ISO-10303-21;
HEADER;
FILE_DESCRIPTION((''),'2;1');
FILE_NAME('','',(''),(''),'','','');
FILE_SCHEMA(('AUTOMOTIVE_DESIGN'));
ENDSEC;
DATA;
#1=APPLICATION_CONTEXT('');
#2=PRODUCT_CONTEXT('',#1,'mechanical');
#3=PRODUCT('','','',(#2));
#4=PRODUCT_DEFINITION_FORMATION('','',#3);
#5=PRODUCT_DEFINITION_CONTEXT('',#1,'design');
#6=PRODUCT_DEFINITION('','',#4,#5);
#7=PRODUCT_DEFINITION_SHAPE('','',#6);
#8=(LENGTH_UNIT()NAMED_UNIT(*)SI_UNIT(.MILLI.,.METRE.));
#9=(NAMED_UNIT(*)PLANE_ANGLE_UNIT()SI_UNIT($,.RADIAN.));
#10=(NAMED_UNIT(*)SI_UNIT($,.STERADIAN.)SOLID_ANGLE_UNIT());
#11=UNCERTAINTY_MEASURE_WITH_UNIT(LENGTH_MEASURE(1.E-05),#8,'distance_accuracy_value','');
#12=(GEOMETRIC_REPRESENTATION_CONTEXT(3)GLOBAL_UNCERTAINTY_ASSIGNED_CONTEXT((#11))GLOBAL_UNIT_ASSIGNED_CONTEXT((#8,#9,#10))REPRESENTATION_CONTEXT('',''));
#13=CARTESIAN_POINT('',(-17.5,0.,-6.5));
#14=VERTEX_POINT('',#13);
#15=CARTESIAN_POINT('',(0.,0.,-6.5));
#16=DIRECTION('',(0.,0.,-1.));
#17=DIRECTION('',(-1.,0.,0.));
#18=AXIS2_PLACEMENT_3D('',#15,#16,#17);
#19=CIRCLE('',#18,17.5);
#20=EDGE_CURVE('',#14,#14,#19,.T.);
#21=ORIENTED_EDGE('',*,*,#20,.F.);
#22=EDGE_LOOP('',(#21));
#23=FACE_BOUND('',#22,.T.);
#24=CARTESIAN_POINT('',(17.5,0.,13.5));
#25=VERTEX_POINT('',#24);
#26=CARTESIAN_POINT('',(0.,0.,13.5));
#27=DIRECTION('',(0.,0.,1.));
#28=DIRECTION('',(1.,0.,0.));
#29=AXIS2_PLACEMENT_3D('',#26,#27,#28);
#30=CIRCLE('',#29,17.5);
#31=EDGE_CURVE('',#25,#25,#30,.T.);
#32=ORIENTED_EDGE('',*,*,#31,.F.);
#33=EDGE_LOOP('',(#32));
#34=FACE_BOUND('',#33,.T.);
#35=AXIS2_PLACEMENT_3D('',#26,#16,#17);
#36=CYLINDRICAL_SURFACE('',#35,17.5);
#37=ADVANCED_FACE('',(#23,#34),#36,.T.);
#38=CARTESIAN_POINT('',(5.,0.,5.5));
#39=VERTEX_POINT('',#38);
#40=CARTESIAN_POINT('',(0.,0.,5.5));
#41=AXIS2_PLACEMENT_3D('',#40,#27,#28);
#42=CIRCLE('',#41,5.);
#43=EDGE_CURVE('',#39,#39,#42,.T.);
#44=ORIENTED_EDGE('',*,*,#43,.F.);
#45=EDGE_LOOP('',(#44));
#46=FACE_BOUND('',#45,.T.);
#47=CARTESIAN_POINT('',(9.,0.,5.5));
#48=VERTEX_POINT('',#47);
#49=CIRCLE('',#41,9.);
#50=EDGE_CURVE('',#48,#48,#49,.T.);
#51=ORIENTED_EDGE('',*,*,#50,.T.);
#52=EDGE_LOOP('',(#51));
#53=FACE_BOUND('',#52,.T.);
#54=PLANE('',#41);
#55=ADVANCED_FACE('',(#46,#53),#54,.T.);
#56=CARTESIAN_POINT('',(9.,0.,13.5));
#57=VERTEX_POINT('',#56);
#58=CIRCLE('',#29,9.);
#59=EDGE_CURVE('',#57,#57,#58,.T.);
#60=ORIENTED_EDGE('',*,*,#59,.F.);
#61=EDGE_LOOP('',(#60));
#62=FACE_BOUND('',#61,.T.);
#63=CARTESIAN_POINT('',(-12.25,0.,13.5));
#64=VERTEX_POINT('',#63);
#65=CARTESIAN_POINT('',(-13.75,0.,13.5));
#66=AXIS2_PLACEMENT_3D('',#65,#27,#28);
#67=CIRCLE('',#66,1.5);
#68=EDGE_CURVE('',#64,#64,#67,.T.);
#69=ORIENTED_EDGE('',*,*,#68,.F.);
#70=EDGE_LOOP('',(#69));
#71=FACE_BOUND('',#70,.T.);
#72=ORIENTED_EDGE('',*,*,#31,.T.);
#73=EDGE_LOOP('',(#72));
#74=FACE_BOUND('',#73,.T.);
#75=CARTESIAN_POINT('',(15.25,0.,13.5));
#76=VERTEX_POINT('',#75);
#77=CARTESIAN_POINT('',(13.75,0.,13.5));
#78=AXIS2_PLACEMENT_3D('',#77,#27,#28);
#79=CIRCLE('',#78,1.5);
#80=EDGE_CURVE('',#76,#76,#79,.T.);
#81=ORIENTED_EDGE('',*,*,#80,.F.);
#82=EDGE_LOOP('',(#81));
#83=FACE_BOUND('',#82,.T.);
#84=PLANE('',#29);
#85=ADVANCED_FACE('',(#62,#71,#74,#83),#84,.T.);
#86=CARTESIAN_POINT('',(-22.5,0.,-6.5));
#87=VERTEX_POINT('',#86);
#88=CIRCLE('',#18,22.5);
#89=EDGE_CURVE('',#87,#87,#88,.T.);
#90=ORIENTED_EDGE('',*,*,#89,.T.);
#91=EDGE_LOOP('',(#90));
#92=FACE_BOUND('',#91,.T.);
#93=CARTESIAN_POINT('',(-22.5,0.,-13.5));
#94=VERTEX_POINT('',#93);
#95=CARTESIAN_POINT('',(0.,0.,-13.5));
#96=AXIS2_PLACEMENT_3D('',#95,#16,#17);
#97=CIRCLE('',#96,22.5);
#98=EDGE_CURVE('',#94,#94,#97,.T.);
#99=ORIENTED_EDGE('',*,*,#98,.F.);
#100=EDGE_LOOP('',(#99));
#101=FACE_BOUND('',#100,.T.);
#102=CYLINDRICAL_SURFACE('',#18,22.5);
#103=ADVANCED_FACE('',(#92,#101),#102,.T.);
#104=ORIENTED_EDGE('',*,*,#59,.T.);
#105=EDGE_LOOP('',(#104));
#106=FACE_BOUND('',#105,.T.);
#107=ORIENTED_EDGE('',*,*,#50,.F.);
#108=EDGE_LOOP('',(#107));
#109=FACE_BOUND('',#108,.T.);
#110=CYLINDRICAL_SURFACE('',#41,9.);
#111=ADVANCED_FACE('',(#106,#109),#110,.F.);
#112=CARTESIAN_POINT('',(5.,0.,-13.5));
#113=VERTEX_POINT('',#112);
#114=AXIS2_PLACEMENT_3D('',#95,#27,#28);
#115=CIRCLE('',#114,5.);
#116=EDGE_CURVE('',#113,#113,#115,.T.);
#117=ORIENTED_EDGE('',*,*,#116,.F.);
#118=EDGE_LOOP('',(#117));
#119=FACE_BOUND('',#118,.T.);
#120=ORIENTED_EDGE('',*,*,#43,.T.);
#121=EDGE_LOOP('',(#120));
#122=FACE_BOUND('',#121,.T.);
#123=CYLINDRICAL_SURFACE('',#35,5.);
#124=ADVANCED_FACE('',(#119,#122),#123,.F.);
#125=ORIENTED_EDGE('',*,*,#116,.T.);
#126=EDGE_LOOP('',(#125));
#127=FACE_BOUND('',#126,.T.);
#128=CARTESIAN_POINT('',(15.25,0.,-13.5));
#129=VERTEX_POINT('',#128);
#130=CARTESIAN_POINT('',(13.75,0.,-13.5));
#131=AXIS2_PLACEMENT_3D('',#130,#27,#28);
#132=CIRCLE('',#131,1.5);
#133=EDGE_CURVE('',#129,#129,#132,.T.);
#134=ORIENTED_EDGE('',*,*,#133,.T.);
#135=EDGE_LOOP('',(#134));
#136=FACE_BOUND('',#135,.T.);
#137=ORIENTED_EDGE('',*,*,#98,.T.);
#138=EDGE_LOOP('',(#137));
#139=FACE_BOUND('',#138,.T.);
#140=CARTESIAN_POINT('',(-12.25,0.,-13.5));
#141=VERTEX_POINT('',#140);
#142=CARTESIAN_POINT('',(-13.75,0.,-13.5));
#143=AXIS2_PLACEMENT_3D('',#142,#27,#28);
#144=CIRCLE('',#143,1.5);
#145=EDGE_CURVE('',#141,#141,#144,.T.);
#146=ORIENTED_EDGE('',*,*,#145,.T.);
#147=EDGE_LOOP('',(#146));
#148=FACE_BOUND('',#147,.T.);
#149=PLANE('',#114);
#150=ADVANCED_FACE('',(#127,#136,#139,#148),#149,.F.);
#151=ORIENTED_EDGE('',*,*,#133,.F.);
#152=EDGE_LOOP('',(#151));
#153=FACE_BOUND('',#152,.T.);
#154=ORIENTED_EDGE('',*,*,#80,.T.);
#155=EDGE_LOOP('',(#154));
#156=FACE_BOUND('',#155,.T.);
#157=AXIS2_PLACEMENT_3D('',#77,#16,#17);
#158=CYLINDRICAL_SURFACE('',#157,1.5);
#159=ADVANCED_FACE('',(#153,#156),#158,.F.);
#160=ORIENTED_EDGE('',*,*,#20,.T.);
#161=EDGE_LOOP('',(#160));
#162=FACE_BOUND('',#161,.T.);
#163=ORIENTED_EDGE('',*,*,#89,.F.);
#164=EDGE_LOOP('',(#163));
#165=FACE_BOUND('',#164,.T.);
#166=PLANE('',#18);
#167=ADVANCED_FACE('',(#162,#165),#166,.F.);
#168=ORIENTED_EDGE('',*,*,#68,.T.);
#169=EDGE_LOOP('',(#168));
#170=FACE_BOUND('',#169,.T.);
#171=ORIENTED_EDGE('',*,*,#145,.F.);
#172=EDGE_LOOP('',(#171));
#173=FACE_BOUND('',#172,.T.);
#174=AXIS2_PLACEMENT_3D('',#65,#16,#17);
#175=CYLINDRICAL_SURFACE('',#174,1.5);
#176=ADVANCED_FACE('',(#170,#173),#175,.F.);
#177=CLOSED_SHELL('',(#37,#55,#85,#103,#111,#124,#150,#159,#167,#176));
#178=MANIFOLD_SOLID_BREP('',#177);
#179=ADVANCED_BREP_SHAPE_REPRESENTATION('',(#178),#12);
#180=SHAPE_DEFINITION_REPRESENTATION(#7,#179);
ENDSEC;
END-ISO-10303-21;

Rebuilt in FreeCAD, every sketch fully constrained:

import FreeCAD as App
import Part
import Sketcher
Q = App.Units.Quantity

doc = App.newDocument("Part")
body = doc.addObject("PartDesign::Body", "Body")

# Sketch on XY plane
sketch1 = body.newObject("Sketcher::SketchObject", "Sketch")
sketch1.AttachmentSupport = (doc.getObject("XY_Plane"), [""])
sketch1.MapMode = "FlatFace"
sketch1.addGeometry([
    Part.Circle(App.Vector(0, 0, 0), App.Vector(0, 0, 1), 17.5),
    Part.Circle(App.Vector(-13.75, 0, 0), App.Vector(0, 0, 1), 1.5),
    Part.Circle(App.Vector(0, 0, 0), App.Vector(0, 0, 1), 5),
    Part.Circle(App.Vector(13.75, 0, 0), App.Vector(0, 0, 1), 1.5),
], False)
sketch1.addConstraint([
    Sketcher.Constraint("Coincident", 0, 3, -1, 1),
    Sketcher.Constraint("Coincident", 2, 3, -1, 1),
    Sketcher.Constraint("Equal", 1, 3),
    Sketcher.Constraint("Symmetric", 1, 3, 3, 3, -1, 1),
    Sketcher.Constraint("PointOnObject", 1, 3, -1),
    Sketcher.Constraint("Diameter", 0, Q("35 mm")),
    Sketcher.Constraint("Diameter", 1, Q("3 mm")),
    Sketcher.Constraint("Diameter", 2, Q("10 mm")),
    Sketcher.Constraint("DistanceX", 1, 3, 3, 3, Q("27.5 mm")),
])
pad1 = body.newObject("PartDesign::Pad", "Pad")
pad1.Profile = sketch1
pad1.Length = 27
pad1.Midplane = True

# Sketch on XY plane
sketch2 = body.newObject("Sketcher::SketchObject", "Sketch001")
sketch2.AttachmentSupport = (doc.getObject("XY_Plane"), [""])
sketch2.MapMode = "FlatFace"
sketch2.AttachmentOffset = App.Placement(App.Vector(0, 0, -6.5), App.Rotation())
sketch2.addGeometry([
    Part.Circle(App.Vector(0, 0, 0), App.Vector(0, 0, 1), 22.5),
    Part.Circle(App.Vector(0, 0, 0), App.Vector(0, 0, 1), 17.5),
], False)
sketch2.addConstraint([
    Sketcher.Constraint("Coincident", 0, 3, -1, 1),
    Sketcher.Constraint("Coincident", 1, 3, -1, 1),
    Sketcher.Constraint("Diameter", 0, Q("45 mm")),
    Sketcher.Constraint("Diameter", 1, Q("35 mm")),
])
pad2 = body.newObject("PartDesign::Pad", "Pad001")
pad2.Profile = sketch2
pad2.Length = 7
pad2.Reversed = True

# Sketch on XY plane
sketch3 = body.newObject("Sketcher::SketchObject", "Sketch002")
sketch3.AttachmentSupport = (doc.getObject("XY_Plane"), [""])
sketch3.MapMode = "FlatFace"
sketch3.addGeometry([
    Part.Circle(App.Vector(0, 0, 0), App.Vector(0, 0, 1), 7.5),
    Part.Circle(App.Vector(0, 0, 0), App.Vector(0, 0, 1), 5),
], False)
sketch3.addConstraint([
    Sketcher.Constraint("Coincident", 0, 3, -1, 1),
    Sketcher.Constraint("Coincident", 1, 3, -1, 1),
    Sketcher.Constraint("Diameter", 0, Q("15 mm")),
    Sketcher.Constraint("Diameter", 1, Q("10 mm")),
])
pad3 = body.newObject("PartDesign::Pad", "Pad002")
pad3.Profile = sketch3
pad3.Length = 17
pad3.Midplane = True

# Sketch on XY plane
sketch4 = body.newObject("Sketcher::SketchObject", "Sketch003")
sketch4.AttachmentSupport = (doc.getObject("XY_Plane"), [""])
sketch4.MapMode = "FlatFace"
sketch4.AttachmentOffset = App.Placement(App.Vector(0, 0, 13.5), App.Rotation())
sketch4.addGeometry(Part.Circle(App.Vector(0, 0, 0), App.Vector(0, 0, 1), 9), False)
sketch4.addConstraint([
    Sketcher.Constraint("Coincident", 0, 3, -1, 1),
    Sketcher.Constraint("Diameter", 0, Q("18 mm")),
])
pocket1 = body.newObject("PartDesign::Pocket", "Pocket")
pocket1.Profile = sketch4
pocket1.Length = 8

doc.recompute()
